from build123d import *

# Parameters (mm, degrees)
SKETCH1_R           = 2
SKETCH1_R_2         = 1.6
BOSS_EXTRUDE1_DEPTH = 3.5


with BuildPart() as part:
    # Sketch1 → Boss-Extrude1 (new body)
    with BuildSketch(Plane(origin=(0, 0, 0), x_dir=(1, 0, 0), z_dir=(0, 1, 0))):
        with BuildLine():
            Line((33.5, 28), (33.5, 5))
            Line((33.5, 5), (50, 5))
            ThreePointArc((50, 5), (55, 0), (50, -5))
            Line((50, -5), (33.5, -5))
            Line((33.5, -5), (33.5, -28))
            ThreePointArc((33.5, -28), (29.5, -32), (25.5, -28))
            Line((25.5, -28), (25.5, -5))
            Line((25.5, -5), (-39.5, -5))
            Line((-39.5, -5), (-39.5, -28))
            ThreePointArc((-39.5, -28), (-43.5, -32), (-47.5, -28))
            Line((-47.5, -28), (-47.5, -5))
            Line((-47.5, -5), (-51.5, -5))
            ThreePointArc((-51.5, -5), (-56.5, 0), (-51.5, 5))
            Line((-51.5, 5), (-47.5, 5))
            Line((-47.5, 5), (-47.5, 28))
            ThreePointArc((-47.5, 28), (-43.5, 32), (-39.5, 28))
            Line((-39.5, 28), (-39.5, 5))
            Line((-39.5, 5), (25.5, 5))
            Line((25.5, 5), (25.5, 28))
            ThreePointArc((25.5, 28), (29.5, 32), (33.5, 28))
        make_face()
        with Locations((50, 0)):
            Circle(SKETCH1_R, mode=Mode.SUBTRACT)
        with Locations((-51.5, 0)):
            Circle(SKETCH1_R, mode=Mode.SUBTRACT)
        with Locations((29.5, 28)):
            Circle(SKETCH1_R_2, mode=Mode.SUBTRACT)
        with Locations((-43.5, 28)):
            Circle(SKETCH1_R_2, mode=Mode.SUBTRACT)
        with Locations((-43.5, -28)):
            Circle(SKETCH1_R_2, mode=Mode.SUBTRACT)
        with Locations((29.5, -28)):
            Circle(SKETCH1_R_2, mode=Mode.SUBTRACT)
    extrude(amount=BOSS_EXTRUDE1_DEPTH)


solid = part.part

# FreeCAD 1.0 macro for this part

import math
import FreeCAD as App
import Part
import Sketcher
from FreeCAD import Vector

doc = App.newDocument("Part")
body = doc.addObject("PartDesign::Body", "Body")

# Sketch on XZ plane
sketch1 = body.newObject("Sketcher::SketchObject", "Sketch")
sketch1.AttachmentSupport = (doc.getObject("XZ_Plane"), [""])
sketch1.MapMode = "FlatFace"
sketch1.addGeometry([
    Part.LineSegment(Vector(33.5, -5, 0), Vector(33.5, -28, 0)),  # 0
    Part.ArcOfCircle(Part.Circle(Vector(29.5, -28, 0), Vector(0, 0, 1), 4), math.radians(180), math.radians(360)),  # 1
    Part.LineSegment(Vector(25.5, -28, 0), Vector(25.5, -5, 0)),  # 2
    Part.LineSegment(Vector(25.5, -5, 0), Vector(-39.5, -5, 0)),  # 3
    Part.LineSegment(Vector(-39.5, -5, 0), Vector(-39.5, -28, 0)),  # 4
    Part.ArcOfCircle(Part.Circle(Vector(-43.5, -28, 0), Vector(0, 0, 1), 4), math.radians(180), math.radians(360)),  # 5
    Part.LineSegment(Vector(-47.5, -28, 0), Vector(-47.5, -5, 0)),  # 6
    Part.LineSegment(Vector(-47.5, -5, 0), Vector(-51.5, -5, 0)),  # 7
    Part.ArcOfCircle(Part.Circle(Vector(-51.5, 0, 0), Vector(0, 0, 1), 5), math.radians(90), math.radians(270)),  # 8
    Part.LineSegment(Vector(-51.5, 5, 0), Vector(-47.5, 5, 0)),  # 9
    Part.LineSegment(Vector(-47.5, 5, 0), Vector(-47.5, 28, 0)),  # 10
    Part.ArcOfCircle(Part.Circle(Vector(-43.5, 28, 0), Vector(0, 0, 1), 4), math.radians(0), math.radians(180)),  # 11
    Part.LineSegment(Vector(-39.5, 28, 0), Vector(-39.5, 5, 0)),  # 12
    Part.LineSegment(Vector(-39.5, 5, 0), Vector(25.5, 5, 0)),  # 13
    Part.LineSegment(Vector(25.5, 5, 0), Vector(25.5, 28, 0)),  # 14
    Part.ArcOfCircle(Part.Circle(Vector(29.5, 28, 0), Vector(0, 0, 1), 4), math.radians(0), math.radians(180)),  # 15
    Part.LineSegment(Vector(33.5, 28, 0), Vector(33.5, 5, 0)),  # 16
    Part.LineSegment(Vector(33.5, 5, 0), Vector(50, 5, 0)),  # 17
    Part.ArcOfCircle(Part.Circle(Vector(50, 0, 0), Vector(0, 0, 1), 5), math.radians(-90), math.radians(90)),  # 18
    Part.LineSegment(Vector(50, -5, 0), Vector(33.5, -5, 0)),  # 19
    Part.Circle(Vector(29.5, 28, 0), Vector(0, 0, 1), 1.6),  # 20
    Part.Circle(Vector(50, 0, 0), Vector(0, 0, 1), 2),  # 21
    Part.Circle(Vector(-43.5, 28, 0), Vector(0, 0, 1), 1.6),  # 22
    Part.Circle(Vector(-51.5, 0, 0), Vector(0, 0, 1), 2),  # 23
    Part.Circle(Vector(29.5, -28, 0), Vector(0, 0, 1), 1.6),  # 24
    Part.Circle(Vector(-43.5, -28, 0), Vector(0, 0, 1), 1.6),  # 25
], False)
sketch1.addConstraint([
    Sketcher.Constraint("Tangent", 0, 2, 1, 2),
    Sketcher.Constraint("Tangent", 1, 1, 2, 1),
    Sketcher.Constraint("Coincident", 2, 2, 3, 1),
    Sketcher.Constraint("Coincident", 3, 2, 4, 1),
    Sketcher.Constraint("Tangent", 4, 2, 5, 2),
    Sketcher.Constraint("Tangent", 5, 1, 6, 1),
    Sketcher.Constraint("Coincident", 6, 2, 7, 1),
    Sketcher.Constraint("Tangent", 7, 2, 8, 2),
    Sketcher.Constraint("Tangent", 8, 1, 9, 1),
    Sketcher.Constraint("Coincident", 9, 2, 10, 1),
    Sketcher.Constraint("Tangent", 10, 2, 11, 2),
    Sketcher.Constraint("Tangent", 11, 1, 12, 1),
    Sketcher.Constraint("Coincident", 12, 2, 13, 1),
    Sketcher.Constraint("Coincident", 13, 2, 14, 1),
    Sketcher.Constraint("Tangent", 14, 2, 15, 2),
    Sketcher.Constraint("Tangent", 15, 1, 16, 1),
    Sketcher.Constraint("Coincident", 16, 2, 17, 1),
    Sketcher.Constraint("Tangent", 17, 2, 18, 2),
    Sketcher.Constraint("Tangent", 18, 1, 19, 1),
    Sketcher.Constraint("Coincident", 19, 2, 0, 1),
    Sketcher.Constraint("Vertical", 0),
    Sketcher.Constraint("Vertical", 2),
    Sketcher.Constraint("Horizontal", 3),
    Sketcher.Constraint("Vertical", 4),
    Sketcher.Constraint("Vertical", 6),
    Sketcher.Constraint("Horizontal", 7),
    Sketcher.Constraint("Horizontal", 9),
    Sketcher.Constraint("Vertical", 10),
    Sketcher.Constraint("Vertical", 12),
    Sketcher.Constraint("Horizontal", 13),
    Sketcher.Constraint("Vertical", 14),
    Sketcher.Constraint("Vertical", 16),
    Sketcher.Constraint("Horizontal", 17),
    Sketcher.Constraint("Horizontal", 19),
    Sketcher.Constraint("Coincident", 20, 3, 15, 3),
    Sketcher.Constraint("Coincident", 21, 3, 18, 3),
    Sketcher.Constraint("Coincident", 22, 3, 11, 3),
    Sketcher.Constraint("Coincident", 23, 3, 8, 3),
    Sketcher.Constraint("Coincident", 24, 3, 1, 3),
    Sketcher.Constraint("Coincident", 25, 3, 5, 3),
    Sketcher.Constraint("Equal", 1, 5),
    Sketcher.Constraint("Equal", 5, 11),
    Sketcher.Constraint("Equal", 11, 15),
    Sketcher.Constraint("Equal", 8, 18),
    Sketcher.Constraint("Equal", 20, 22),
    Sketcher.Constraint("Equal", 21, 23),
    Sketcher.Constraint("Equal", 22, 24),
    Sketcher.Constraint("Equal", 24, 25),
    Sketcher.Constraint("Symmetric", 5, 3, 11, 3, -1),
    Sketcher.Constraint("Symmetric", 1, 3, 15, 3, -1),
    Sketcher.Constraint("PointOnObject", 8, 3, -1),
    Sketcher.Constraint("PointOnObject", 18, 3, -1),
    Sketcher.Constraint("Horizontal", 1, 3, 5, 3),
    Sketcher.Constraint("Horizontal", 3, 2, 6, 2),
    Sketcher.Constraint("Horizontal", 9, 2, 12, 2),
    Sketcher.Constraint("Diameter", 21, 4.0),
    Sketcher.Constraint("Radius", 1, 4.0),
    Sketcher.Constraint("Radius", 8, 5.0),
    Sketcher.Constraint("Diameter", 20, 3.2),
    Sketcher.Constraint("DistanceX", 3, 2, 3, 1, 65.0),
    Sketcher.Constraint("DistanceX", 7, 2, 7, 1, 4.0),
    Sketcher.Constraint("DistanceY", 0, 2, 0, 1, 23.0),
    Sketcher.Constraint("DistanceX", 17, 1, 17, 2, 16.5),
    Sketcher.Constraint("DistanceX", -1, 1, 18, 3, 50.0),
])
pad1 = body.newObject("PartDesign::Pad", "Pad")
pad1.Profile = sketch1
pad1.Length = 3.5
pad1.Reversed = True

doc.recompute()
